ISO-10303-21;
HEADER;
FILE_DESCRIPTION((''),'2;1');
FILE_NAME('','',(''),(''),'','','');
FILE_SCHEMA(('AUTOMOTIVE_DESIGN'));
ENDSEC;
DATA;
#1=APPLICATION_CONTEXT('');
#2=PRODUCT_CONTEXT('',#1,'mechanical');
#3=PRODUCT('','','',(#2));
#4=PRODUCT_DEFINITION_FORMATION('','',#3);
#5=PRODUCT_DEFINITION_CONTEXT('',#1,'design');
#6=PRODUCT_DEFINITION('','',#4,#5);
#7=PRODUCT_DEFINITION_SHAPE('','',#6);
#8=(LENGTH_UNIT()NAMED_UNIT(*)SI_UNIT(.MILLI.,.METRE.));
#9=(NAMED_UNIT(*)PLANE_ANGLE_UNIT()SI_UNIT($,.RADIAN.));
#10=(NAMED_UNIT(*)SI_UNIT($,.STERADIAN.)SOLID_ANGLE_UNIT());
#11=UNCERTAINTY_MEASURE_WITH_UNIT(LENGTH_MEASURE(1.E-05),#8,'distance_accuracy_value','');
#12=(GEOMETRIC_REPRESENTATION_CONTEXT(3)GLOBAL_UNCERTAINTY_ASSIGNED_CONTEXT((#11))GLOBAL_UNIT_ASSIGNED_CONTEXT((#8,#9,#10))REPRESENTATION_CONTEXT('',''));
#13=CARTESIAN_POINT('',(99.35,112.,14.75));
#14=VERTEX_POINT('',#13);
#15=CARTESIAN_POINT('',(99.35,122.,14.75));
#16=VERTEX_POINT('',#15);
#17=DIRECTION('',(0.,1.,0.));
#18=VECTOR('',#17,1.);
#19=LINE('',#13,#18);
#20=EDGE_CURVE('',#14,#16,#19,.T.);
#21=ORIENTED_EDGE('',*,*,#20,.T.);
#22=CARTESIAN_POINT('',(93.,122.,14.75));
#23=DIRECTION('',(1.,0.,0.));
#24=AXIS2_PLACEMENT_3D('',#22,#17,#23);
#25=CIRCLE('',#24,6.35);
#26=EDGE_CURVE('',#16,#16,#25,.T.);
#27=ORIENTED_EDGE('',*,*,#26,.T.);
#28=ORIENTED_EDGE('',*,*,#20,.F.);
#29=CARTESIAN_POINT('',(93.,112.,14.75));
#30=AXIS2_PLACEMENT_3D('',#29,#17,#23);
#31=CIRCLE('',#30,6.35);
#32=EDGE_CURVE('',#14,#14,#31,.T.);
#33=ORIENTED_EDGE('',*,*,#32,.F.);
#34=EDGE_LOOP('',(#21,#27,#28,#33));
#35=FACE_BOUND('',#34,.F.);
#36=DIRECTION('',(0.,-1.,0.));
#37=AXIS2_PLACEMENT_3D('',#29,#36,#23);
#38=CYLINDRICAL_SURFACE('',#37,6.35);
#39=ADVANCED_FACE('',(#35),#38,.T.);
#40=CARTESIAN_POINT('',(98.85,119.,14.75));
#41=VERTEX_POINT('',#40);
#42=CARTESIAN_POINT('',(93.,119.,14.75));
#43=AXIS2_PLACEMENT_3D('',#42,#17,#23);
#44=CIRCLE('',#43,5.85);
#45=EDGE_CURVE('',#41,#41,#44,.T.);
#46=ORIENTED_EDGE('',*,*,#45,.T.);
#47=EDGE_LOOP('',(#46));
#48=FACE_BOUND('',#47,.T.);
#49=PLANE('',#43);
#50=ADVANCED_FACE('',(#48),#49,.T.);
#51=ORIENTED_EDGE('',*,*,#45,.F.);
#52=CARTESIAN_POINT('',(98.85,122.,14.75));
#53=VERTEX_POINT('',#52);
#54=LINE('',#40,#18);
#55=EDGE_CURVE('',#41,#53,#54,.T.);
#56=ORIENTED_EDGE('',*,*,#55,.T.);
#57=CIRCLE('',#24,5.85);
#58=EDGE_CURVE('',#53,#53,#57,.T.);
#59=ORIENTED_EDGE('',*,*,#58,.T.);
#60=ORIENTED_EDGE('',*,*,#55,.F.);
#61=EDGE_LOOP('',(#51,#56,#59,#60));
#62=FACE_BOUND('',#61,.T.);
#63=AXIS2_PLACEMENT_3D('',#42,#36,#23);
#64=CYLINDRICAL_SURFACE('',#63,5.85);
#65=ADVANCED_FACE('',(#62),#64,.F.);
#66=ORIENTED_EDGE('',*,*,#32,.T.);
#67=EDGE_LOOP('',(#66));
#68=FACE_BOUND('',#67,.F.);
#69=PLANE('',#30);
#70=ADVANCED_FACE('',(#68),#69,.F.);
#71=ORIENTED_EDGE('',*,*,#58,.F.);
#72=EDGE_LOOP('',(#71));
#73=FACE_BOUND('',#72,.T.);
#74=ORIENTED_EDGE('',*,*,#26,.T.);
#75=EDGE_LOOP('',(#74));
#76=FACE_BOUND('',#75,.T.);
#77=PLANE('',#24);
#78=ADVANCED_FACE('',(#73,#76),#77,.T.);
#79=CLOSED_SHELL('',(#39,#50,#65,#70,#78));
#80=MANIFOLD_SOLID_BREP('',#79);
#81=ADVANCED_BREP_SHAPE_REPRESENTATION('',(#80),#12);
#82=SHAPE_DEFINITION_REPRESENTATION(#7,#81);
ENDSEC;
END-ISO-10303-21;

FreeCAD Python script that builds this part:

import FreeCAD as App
import Part
import Sketcher
Q = App.Units.Quantity

doc = App.newDocument("Part")
body = doc.addObject("PartDesign::Body", "Body")

sketch1 = body.newObject("Sketcher::SketchObject", "Sketch")
sketch1.AttachmentSupport = (doc.getObject("XZ_Plane"), [""])
sketch1.MapMode = "FlatFace"
sketch1.AttachmentOffset = App.Placement(App.Vector(0, 0, -119), App.Rotation())
sketch1.addGeometry(Part.Circle(App.Vector(93, 15, 0), App.Vector(0, 0, 1), 6), False)
sketch1.addConstraint(Sketcher.Constraint("Diameter", 0, Q("11.7 mm")))
sketch1.addConstraint(Sketcher.Constraint("DistanceX", -1, 1, 0, 3, Q("93 mm")))
sketch1.addConstraint(Sketcher.Constraint("DistanceY", -1, 1, 0, 3, Q("14.75 mm")))
pad1 = body.newObject("PartDesign::Pad", "Pad")
pad1.Profile = sketch1
pad1.Length = 3
pad1.Reversed = True
body2 = doc.addObject("PartDesign::Body", "Body001")

sketch2 = body2.newObject("Sketcher::SketchObject", "Sketch001")
sketch2.AttachmentSupport = (doc.getObject("XZ_Plane001"), [""])
sketch2.MapMode = "FlatFace"
sketch2.AttachmentOffset = App.Placement(App.Vector(0, 0, -112), App.Rotation())
sketch2.addGeometry(Part.Circle(App.Vector(93, 15, 0), App.Vector(0, 0, 1), 6), False)
sketch2.addConstraint(Sketcher.Constraint("Diameter", 0, Q("12.7 mm")))
sketch2.addConstraint(Sketcher.Constraint("DistanceX", -1, 1, 0, 3, Q("93 mm")))
sketch2.addConstraint(Sketcher.Constraint("DistanceY", -1, 1, 0, 3, Q("14.75 mm")))
pad2 = body2.newObject("PartDesign::Pad", "Pad001")
pad2.Profile = sketch2
pad2.Length = 10
pad2.Reversed = True
doc.recompute()

boolean = body2.newObject("PartDesign::Boolean", "Boolean")
boolean.Type = "Cut"
boolean.addObjects([body])

doc.recompute()
